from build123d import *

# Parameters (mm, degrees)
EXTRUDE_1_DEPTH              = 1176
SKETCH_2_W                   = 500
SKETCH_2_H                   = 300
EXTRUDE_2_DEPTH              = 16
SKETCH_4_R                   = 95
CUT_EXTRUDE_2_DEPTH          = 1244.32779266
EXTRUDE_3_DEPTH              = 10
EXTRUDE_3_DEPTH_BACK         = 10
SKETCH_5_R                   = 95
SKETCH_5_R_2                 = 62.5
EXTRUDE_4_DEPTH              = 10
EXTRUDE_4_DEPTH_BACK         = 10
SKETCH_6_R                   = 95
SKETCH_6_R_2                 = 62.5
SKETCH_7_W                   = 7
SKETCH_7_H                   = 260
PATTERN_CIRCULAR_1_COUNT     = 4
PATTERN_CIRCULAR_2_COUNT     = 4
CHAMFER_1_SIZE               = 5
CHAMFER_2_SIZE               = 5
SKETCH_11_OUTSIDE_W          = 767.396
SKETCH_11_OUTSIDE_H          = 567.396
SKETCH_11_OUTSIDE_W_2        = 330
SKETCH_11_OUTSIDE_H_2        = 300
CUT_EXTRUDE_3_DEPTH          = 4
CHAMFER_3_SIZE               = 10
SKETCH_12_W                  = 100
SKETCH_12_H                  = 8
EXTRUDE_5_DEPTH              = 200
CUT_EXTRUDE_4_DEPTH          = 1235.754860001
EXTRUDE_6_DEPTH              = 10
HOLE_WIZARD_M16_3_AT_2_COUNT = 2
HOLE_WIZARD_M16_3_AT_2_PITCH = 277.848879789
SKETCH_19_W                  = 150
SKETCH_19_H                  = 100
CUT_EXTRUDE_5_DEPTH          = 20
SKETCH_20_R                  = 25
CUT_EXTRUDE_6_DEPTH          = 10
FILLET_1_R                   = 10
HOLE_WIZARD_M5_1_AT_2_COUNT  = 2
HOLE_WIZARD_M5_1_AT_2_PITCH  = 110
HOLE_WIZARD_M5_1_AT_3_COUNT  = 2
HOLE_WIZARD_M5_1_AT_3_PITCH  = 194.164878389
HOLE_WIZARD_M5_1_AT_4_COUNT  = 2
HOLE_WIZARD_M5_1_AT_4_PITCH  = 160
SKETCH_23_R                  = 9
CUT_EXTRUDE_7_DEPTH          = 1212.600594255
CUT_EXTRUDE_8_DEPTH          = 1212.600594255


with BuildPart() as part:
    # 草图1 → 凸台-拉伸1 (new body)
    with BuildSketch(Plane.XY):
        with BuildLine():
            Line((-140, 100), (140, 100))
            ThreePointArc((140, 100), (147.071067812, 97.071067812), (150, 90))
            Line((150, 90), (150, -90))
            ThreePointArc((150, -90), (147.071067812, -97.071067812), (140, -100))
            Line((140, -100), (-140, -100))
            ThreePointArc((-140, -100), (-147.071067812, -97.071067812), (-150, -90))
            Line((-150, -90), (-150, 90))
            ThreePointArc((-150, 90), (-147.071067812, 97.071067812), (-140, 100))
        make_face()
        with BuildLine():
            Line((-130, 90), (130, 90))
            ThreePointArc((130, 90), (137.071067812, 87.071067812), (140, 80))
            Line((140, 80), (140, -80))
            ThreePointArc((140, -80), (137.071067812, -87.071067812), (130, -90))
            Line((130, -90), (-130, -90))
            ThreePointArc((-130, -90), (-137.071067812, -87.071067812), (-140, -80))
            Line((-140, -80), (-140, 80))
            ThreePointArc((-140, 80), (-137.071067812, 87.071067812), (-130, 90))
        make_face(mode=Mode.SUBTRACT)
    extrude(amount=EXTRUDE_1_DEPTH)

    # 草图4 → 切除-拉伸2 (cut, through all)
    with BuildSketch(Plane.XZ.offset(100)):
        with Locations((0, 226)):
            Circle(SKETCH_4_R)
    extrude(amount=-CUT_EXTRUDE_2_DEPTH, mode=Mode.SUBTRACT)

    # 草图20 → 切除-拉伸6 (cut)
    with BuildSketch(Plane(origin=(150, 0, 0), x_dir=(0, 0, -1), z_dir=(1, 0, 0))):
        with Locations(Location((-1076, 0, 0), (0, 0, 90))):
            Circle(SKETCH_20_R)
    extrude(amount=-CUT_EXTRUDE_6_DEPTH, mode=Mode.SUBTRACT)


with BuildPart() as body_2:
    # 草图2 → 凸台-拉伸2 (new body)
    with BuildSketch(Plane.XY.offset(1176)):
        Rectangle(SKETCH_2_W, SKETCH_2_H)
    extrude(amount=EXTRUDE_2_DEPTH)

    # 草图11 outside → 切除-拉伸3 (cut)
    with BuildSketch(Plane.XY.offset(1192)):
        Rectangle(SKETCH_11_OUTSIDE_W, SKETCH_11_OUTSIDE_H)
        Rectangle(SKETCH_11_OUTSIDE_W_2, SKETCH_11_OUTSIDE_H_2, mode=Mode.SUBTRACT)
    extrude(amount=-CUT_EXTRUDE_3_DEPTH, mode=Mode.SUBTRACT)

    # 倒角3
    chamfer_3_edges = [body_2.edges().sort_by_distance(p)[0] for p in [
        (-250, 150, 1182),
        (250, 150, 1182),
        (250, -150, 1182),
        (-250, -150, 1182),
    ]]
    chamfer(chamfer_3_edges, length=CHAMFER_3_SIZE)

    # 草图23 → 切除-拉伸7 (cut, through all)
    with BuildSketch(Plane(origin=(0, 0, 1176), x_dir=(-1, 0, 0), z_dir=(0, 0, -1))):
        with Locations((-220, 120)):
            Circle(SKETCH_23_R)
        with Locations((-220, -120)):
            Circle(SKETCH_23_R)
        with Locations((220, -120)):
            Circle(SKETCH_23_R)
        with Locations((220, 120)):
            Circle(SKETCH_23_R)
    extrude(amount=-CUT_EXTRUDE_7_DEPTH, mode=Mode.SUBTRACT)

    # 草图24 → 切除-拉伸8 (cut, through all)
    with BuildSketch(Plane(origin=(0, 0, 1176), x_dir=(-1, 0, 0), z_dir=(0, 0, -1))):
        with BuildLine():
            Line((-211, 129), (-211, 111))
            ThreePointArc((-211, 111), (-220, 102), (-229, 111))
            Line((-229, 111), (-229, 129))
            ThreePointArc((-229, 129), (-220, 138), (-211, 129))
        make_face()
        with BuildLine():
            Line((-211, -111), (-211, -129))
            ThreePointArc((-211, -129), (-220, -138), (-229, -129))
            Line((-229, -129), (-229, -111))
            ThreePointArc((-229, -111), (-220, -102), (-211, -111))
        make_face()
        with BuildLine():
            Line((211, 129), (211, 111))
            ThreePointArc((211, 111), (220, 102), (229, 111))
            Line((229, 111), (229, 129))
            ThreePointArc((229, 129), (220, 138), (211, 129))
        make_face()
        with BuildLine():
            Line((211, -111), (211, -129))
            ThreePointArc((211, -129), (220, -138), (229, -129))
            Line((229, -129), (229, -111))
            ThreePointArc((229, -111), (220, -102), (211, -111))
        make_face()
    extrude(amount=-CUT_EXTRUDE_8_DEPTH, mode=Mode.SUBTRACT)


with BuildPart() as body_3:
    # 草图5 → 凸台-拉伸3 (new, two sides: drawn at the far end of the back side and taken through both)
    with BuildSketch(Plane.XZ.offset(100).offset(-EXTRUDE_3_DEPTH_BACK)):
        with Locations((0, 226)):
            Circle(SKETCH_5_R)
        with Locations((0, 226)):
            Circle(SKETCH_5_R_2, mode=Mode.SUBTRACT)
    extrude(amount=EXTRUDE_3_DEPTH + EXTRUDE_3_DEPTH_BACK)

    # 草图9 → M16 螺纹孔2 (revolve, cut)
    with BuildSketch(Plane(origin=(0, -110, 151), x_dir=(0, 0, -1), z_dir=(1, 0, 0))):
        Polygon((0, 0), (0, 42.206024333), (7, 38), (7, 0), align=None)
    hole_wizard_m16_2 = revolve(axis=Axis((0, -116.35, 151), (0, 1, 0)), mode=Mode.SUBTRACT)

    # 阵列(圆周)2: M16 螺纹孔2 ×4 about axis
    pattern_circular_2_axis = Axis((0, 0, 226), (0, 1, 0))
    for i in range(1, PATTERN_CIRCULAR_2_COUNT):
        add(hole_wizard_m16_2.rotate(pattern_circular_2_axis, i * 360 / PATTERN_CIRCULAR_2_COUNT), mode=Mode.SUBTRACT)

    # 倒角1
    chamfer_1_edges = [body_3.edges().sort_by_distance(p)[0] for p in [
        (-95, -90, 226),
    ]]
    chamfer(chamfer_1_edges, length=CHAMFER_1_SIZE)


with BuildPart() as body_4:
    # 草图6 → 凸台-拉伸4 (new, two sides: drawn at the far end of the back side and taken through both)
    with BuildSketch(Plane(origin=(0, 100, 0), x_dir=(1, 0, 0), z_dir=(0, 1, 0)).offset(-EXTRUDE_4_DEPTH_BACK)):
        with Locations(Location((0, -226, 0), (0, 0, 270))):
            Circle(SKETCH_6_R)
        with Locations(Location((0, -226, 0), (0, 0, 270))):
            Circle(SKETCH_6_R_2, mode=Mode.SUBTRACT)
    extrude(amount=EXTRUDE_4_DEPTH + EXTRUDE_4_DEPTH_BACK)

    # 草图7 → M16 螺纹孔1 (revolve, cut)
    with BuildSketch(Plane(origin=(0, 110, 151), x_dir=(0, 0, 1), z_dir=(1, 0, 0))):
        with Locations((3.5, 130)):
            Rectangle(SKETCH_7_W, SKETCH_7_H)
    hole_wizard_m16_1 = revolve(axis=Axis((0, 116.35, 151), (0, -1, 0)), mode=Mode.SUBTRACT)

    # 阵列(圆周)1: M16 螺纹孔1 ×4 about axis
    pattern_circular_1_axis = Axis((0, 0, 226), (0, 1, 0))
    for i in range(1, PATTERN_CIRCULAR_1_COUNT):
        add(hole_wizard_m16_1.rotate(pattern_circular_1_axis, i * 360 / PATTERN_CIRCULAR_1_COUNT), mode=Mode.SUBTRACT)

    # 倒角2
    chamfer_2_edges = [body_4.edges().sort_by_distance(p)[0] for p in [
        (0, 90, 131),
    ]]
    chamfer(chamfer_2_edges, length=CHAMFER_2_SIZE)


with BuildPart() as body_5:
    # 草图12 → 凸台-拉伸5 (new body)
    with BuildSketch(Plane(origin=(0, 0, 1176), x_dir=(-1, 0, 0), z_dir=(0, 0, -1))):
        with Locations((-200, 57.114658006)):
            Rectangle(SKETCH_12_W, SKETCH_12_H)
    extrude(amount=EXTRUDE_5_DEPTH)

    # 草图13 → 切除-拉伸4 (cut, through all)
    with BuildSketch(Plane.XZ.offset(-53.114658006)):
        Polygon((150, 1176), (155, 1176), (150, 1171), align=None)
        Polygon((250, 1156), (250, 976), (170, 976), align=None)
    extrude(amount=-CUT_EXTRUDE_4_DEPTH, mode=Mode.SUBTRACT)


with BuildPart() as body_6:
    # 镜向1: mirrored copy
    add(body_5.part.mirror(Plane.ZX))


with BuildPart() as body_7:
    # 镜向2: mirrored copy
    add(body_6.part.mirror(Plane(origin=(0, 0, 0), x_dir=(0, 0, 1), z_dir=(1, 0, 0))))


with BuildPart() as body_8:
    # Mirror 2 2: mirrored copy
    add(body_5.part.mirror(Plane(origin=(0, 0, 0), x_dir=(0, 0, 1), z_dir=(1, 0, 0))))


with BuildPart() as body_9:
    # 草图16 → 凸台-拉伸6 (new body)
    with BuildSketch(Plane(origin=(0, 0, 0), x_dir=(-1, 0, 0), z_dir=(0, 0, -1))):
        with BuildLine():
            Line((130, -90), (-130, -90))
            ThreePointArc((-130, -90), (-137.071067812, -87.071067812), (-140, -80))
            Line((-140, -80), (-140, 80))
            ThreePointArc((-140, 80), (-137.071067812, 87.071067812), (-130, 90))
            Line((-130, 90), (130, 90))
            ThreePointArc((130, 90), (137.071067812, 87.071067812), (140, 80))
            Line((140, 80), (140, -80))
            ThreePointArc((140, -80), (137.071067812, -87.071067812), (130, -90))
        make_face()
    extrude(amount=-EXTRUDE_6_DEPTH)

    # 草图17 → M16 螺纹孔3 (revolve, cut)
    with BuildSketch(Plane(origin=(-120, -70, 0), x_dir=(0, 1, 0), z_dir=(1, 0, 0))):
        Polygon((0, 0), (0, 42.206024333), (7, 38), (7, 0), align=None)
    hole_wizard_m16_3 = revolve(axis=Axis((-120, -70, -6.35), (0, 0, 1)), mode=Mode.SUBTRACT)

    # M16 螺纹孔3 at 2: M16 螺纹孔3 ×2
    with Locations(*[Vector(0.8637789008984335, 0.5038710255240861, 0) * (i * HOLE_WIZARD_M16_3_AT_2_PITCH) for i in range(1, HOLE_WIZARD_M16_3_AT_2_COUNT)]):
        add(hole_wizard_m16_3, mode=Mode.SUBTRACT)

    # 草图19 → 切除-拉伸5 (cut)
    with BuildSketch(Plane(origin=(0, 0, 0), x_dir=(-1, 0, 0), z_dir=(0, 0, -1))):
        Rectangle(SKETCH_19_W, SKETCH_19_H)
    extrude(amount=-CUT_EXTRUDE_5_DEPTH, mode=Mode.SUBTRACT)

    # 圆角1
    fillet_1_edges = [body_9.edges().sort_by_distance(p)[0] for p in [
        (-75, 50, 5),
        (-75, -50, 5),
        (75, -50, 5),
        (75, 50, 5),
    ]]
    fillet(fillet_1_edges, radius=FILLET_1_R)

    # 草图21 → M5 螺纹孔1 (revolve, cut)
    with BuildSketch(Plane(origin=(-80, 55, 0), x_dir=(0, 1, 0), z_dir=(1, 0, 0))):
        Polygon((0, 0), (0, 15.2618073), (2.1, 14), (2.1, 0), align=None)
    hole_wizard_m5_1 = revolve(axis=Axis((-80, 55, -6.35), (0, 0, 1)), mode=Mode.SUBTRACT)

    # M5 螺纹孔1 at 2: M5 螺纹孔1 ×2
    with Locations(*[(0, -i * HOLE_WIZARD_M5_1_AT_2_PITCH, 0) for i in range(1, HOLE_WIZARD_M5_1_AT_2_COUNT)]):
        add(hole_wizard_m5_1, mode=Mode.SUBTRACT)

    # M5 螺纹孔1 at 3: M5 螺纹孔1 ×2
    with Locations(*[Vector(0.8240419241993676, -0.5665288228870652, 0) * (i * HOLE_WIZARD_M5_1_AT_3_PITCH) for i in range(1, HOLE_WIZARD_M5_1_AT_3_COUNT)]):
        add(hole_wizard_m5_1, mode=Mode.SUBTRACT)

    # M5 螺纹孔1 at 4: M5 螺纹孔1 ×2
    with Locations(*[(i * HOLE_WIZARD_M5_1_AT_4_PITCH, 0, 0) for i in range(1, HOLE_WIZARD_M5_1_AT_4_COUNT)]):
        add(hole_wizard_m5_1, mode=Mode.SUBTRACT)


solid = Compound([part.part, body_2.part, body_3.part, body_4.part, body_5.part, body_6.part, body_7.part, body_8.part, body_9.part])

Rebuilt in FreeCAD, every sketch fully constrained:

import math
import FreeCAD as App
import Part
import Sketcher

V = App.Vector
Q = App.Units.Quantity


def edges_at(feature, points):
    """Names of the edges that pass closest to the given points."""
    edges = feature.Shape.Edges
    near = lambda p: min(range(len(edges)), key=lambda i: edges[i].distToShape(Part.Vertex(*p))[0])
    return sorted({f"Edge{near(p) + 1}" for p in points})

doc = App.newDocument("Part")
params = doc.addObject("Spreadsheet::Sheet", "Params")
for row, (alias, value) in enumerate([
    ("sketch1_radius", "10 mm"),
    ("sketch1_width", "280 mm"),
    ("sketch1_height", "180 mm"),
    ("pad1_length", "1176 mm"),
    ("sketch2_diameter", "190 mm"),
    ("sketch3_diameter", "50 mm"),
    ("pocket2_length", "10 mm"),
    ("sketch4_width", "500 mm"),
    ("sketch4_height", "300 mm"),
    ("pad2_length", "16 mm"),
    ("sketch5_width", "330 mm"),
    ("sketch5_height", "300 mm"),
    ("pocket3_length", "4 mm"),
    ("chamfer_size", "10 mm"),
    ("sketch6_diameter", "18 mm"),
    ("sketch7_radius", "9 mm"),
    ("sketch7_height", "18 mm"),
    ("sketch8_diameter", "190 mm"),
    ("sketch8_diameter2", "125 mm"),
    ("pad3_length", "10 mm"),
    ("pad3_length2", "10 mm"),
    ("sketch9_width", "38 mm"),
    ("sketch9_height", "7 mm"),
    ("groove_angle", "360 deg"),
    ("chamfer2_size", "5 mm"),
    ("sketch10_diameter", "190 mm"),
    ("sketch10_diameter2", "125 mm"),
    ("pad4_length", "10 mm"),
    ("pad4_length2", "10 mm"),
    ("sketch11_width", "260 mm"),
    ("sketch11_height", "7 mm"),
    ("groove2_angle", "360 deg"),
    ("chamfer3_size", "5 mm"),
    ("sketch12_width", "100 mm"),
    ("sketch12_height", "8 mm"),
    ("pad5_length", "200 mm"),
    ("sketch13_width", "5 mm"),
    ("sketch13_width2", "80 mm"),
    ("sketch13_height", "180 mm"),
    ("sketch14_radius", "10 mm"),
    ("sketch14_width", "260 mm"),
    ("sketch14_height", "160 mm"),
    ("pad6_length", "10 mm"),
    ("sketch15_width", "7 mm"),
    ("sketch15_height", "38 mm"),
    ("groove3_angle", "360 deg"),
    ("linearpattern_pitch", "277.84888 mm"),
    ("sketch16_width", "150 mm"),
    ("sketch16_height", "100 mm"),
    ("pocket7_length", "20 mm"),
    ("fillet_radius", "10 mm"),
    ("sketch17_height", "14 mm"),
    ("sketch17_width", "2.1 mm"),
    ("groove4_angle", "360 deg"),
    ("linearpattern2_pitch", "110 mm"),
    ("linearpattern3_pitch", "194.164878 mm"),
    ("linearpattern4_pitch", "160 mm"),
], start=1):
    params.set(f"A{row}", alias)
    params.set(f"B{row}", "=" + value)
    params.setAlias(f"B{row}", alias)

body = doc.addObject("PartDesign::Body", "Body")

sketch1 = body.newObject("Sketcher::SketchObject", "Sketch")
sketch1.AttachmentSupport = (doc.getObject("XY_Plane"), [""])
sketch1.MapMode = "FlatFace"
sketch1.addGeometry([
    Part.LineSegment(V(140, 100, 0), V(-140, 100, 0)),
    Part.ArcOfCircle(Part.Circle(V(-140, 90, 0), V(0, 0, 1), 10), math.radians(90), math.radians(180)),
    Part.LineSegment(V(-150, 90, 0), V(-150, -90, 0)),
    Part.ArcOfCircle(Part.Circle(V(-140, -90, 0), V(0, 0, 1), 10), math.radians(180), math.radians(270)),
    Part.LineSegment(V(-140, -100, 0), V(140, -100, 0)),
    Part.ArcOfCircle(Part.Circle(V(140, -90, 0), V(0, 0, 1), 10), math.radians(-90), math.radians(0)),
    Part.LineSegment(V(150, -90, 0), V(150, 90, 0)),
    Part.ArcOfCircle(Part.Circle(V(140, 90, 0), V(0, 0, 1), 10), math.radians(0), math.radians(90)),
    Part.LineSegment(V(-130, 90, 0), V(130, 90, 0)),
    Part.ArcOfCircle(Part.Circle(V(130, 80, 0), V(0, 0, 1), 10), math.radians(0), math.radians(90)),
    Part.LineSegment(V(140, 80, 0), V(140, -80, 0)),
    Part.ArcOfCircle(Part.Circle(V(130, -80, 0), V(0, 0, 1), 10), math.radians(-90), math.radians(0)),
    Part.LineSegment(V(130, -90, 0), V(-130, -90, 0)),
    Part.ArcOfCircle(Part.Circle(V(-130, -80, 0), V(0, 0, 1), 10), math.radians(180), math.radians(270)),
    Part.LineSegment(V(-140, -80, 0), V(-140, 80, 0)),
    Part.ArcOfCircle(Part.Circle(V(-130, 80, 0), V(0, 0, 1), 10), math.radians(90), math.radians(180)),
], False)
sketch1.addConstraint([
    Sketcher.Constraint("Tangent", 0, 2, 1, 1),
    Sketcher.Constraint("Tangent", 1, 2, 2, 1),
    Sketcher.Constraint("Tangent", 2, 2, 3, 1),
    Sketcher.Constraint("Tangent", 3, 2, 4, 1),
    Sketcher.Constraint("Tangent", 4, 2, 5, 1),
    Sketcher.Constraint("Tangent", 5, 2, 6, 1),
    Sketcher.Constraint("Tangent", 6, 2, 7, 1),
    Sketcher.Constraint("Tangent", 7, 2, 0, 1),
    Sketcher.Constraint("Tangent", 8, 2, 9, 2),
    Sketcher.Constraint("Tangent", 9, 1, 10, 1),
    Sketcher.Constraint("Tangent", 10, 2, 11, 2),
    Sketcher.Constraint("Tangent", 11, 1, 12, 1),
    Sketcher.Constraint("Tangent", 12, 2, 13, 2),
    Sketcher.Constraint("Tangent", 13, 1, 14, 1),
    Sketcher.Constraint("Tangent", 14, 2, 15, 2),
    Sketcher.Constraint("Tangent", 15, 1, 8, 1),
    Sketcher.Constraint("Horizontal", 0),
    Sketcher.Constraint("Vertical", 2),
    Sketcher.Constraint("Horizontal", 4),
    Sketcher.Constraint("Vertical", 6),
    Sketcher.Constraint("Horizontal", 8),
    Sketcher.Constraint("Vertical", 10),
    Sketcher.Constraint("Horizontal", 12),
    Sketcher.Constraint("Vertical", 14),
    Sketcher.Constraint("Equal", 1, 3),
    Sketcher.Constraint("Equal", 3, 5),
    Sketcher.Constraint("Equal", 5, 7),
    Sketcher.Constraint("Equal", 7, 9),
    Sketcher.Constraint("Equal", 9, 11),
    Sketcher.Constraint("Equal", 11, 13),
    Sketcher.Constraint("Equal", 13, 15),
    Sketcher.Constraint("Symmetric", 1, 3, 5, 3, -1, 1),
    Sketcher.Constraint("Symmetric", 9, 3, 13, 3, -1, 1),
    Sketcher.Constraint("Horizontal", 6, 2, 8, 2),
    Sketcher.Constraint("Vertical", 7, 2, 9, 1),
    Sketcher.Constraint("Radius", 1, Q("10 mm")),
    Sketcher.Constraint("DistanceX", 0, 2, 0, 1, Q("280 mm")),
    Sketcher.Constraint("DistanceY", 2, 2, 2, 1, Q("180 mm")),
])
sketch1.setExpression("Constraints[35]", "Params.sketch1_radius")
sketch1.setExpression("Constraints[36]", "Params.sketch1_width")
sketch1.setExpression("Constraints[37]", "Params.sketch1_height")
pad1 = body.newObject("PartDesign::Pad", "Pad")
pad1.Profile = sketch1
pad1.setExpression("Length", "Params.pad1_length")

sketch2 = body.newObject("Sketcher::SketchObject", "Sketch001")
sketch2.AttachmentSupport = (doc.getObject("XZ_Plane"), [""])
sketch2.MapMode = "FlatFace"
sketch2.AttachmentOffset = App.Placement(V(0, 0, 100), App.Rotation())
sketch2.addGeometry(Part.Circle(V(0, 226, 0), V(0, 0, 1), 95), False)
sketch2.addConstraint([
    Sketcher.Constraint("PointOnObject", 0, 3, -2),
    Sketcher.Constraint("Diameter", 0, Q("190 mm")),
    Sketcher.Constraint("DistanceY", -1, 1, 0, 3, Q("226 mm")),
])
sketch2.setExpression("Constraints[1]", "Params.sketch2_diameter")
pocket1 = body.newObject("PartDesign::Pocket", "Pocket")
pocket1.Profile = sketch2
pocket1.Type = "ThroughAll"

sketch3 = body.newObject("Sketcher::SketchObject", "Sketch002")
sketch3.AttachmentSupport = (doc.getObject("YZ_Plane"), [""])
sketch3.MapMode = "FlatFace"
sketch3.AttachmentOffset = App.Placement(V(0, 0, 150), App.Rotation())
sketch3.addGeometry(Part.Circle(V(0, 1076, 0), V(0, 0, 1), 25), False)
sketch3.addConstraint([
    Sketcher.Constraint("PointOnObject", 0, 3, -2),
    Sketcher.Constraint("Diameter", 0, Q("50 mm")),
    Sketcher.Constraint("DistanceY", -1, 1, 0, 3, Q("1076 mm")),
])
sketch3.setExpression("Constraints[1]", "Params.sketch3_diameter")
pocket2 = body.newObject("PartDesign::Pocket", "Pocket001")
pocket2.Profile = sketch3
pocket2.setExpression("Length", "Params.pocket2_length")
body2 = doc.addObject("PartDesign::Body", "Body001")

sketch4 = body2.newObject("Sketcher::SketchObject", "Sketch003")
sketch4.AttachmentSupport = (doc.getObject("XY_Plane001"), [""])
sketch4.MapMode = "FlatFace"
sketch4.AttachmentOffset = App.Placement(V(0, 0, 1176), App.Rotation())
sketch4.addGeometry([
    Part.LineSegment(V(-250, 150, 0), V(-250, -150, 0)),
    Part.LineSegment(V(-250, -150, 0), V(250, -150, 0)),
    Part.LineSegment(V(250, -150, 0), V(250, 150, 0)),
    Part.LineSegment(V(250, 150, 0), V(-250, 150, 0)),
], False)
sketch4.addConstraint([
    Sketcher.Constraint("Coincident", 0, 2, 1, 1),
    Sketcher.Constraint("Coincident", 1, 2, 2, 1),
    Sketcher.Constraint("Coincident", 2, 2, 3, 1),
    Sketcher.Constraint("Coincident", 3, 2, 0, 1),
    Sketcher.Constraint("Vertical", 0),
    Sketcher.Constraint("Horizontal", 1),
    Sketcher.Constraint("Vertical", 2),
    Sketcher.Constraint("Horizontal", 3),
    Sketcher.Constraint("Symmetric", 0, 2, 2, 2, -1, 1),
    Sketcher.Constraint("DistanceX", 1, 1, 1, 2, Q("500 mm")),
    Sketcher.Constraint("DistanceY", 0, 2, 0, 1, Q("300 mm")),
])
sketch4.setExpression("Constraints[9]", "Params.sketch4_width")
sketch4.setExpression("Constraints[10]", "Params.sketch4_height")
pad2 = body2.newObject("PartDesign::Pad", "Pad001")
pad2.Profile = sketch4
pad2.setExpression("Length", "Params.pad2_length")

sketch5 = body2.newObject("Sketcher::SketchObject", "Sketch004")
sketch5.AttachmentSupport = (doc.getObject("XY_Plane001"), [""])
sketch5.MapMode = "FlatFace"
sketch5.AttachmentOffset = App.Placement(V(0, 0, 1192), App.Rotation())
sketch5.addGeometry([
    Part.LineSegment(V(-383.698, 283.698, 0), V(-383.698, -283.698, 0)),
    Part.LineSegment(V(-383.698, -283.698, 0), V(383.698, -283.698, 0)),
    Part.LineSegment(V(383.698, -283.698, 0), V(383.698, 283.698, 0)),
    Part.LineSegment(V(383.698, 283.698, 0), V(-383.698, 283.698, 0)),
    Part.LineSegment(V(165, -150, 0), V(-165, -150, 0)),
    Part.LineSegment(V(-165, -150, 0), V(-165, 150, 0)),
    Part.LineSegment(V(-165, 150, 0), V(165, 150, 0)),
    Part.LineSegment(V(165, 150, 0), V(165, -150, 0)),
], False)
sketch5.addConstraint([
    Sketcher.Constraint("Coincident", 0, 2, 1, 1),
    Sketcher.Constraint("Coincident", 1, 2, 2, 1),
    Sketcher.Constraint("Coincident", 2, 2, 3, 1),
    Sketcher.Constraint("Coincident", 3, 2, 0, 1),
    Sketcher.Constraint("Coincident", 4, 2, 5, 1),
    Sketcher.Constraint("Coincident", 5, 2, 6, 1),
    Sketcher.Constraint("Coincident", 6, 2, 7, 1),
    Sketcher.Constraint("Coincident", 7, 2, 4, 1),
    Sketcher.Constraint("Vertical", 0),
    Sketcher.Constraint("Horizontal", 1),
    Sketcher.Constraint("Vertical", 2),
    Sketcher.Constraint("Horizontal", 3),
    Sketcher.Constraint("Horizontal", 4),
    Sketcher.Constraint("Vertical", 5),
    Sketcher.Constraint("Horizontal", 6),
    Sketcher.Constraint("Vertical", 7),
    Sketcher.Constraint("Symmetric", 0, 2, 2, 2, -1, 1),
    Sketcher.Constraint("Symmetric", 4, 2, 6, 2, -1, 1),
    Sketcher.Constraint("DistanceX", 4, 2, 4, 1, Q("330 mm")),
    Sketcher.Constraint("DistanceY", 5, 1, 5, 2, Q("300 mm")),
    Sketcher.Constraint("DistanceX", 1, 1, 1, 2, Q("767.396 mm")),
    Sketcher.Constraint("DistanceY", 0, 2, 0, 1, Q("567.396 mm")),
])
sketch5.setExpression("Constraints[18]", "Params.sketch5_width")
sketch5.setExpression("Constraints[19]", "Params.sketch5_height")
pocket3 = body2.newObject("PartDesign::Pocket", "Pocket002")
pocket3.Profile = sketch5
pocket3.setExpression("Length", "Params.pocket3_length")
doc.recompute()

chamfer = body2.newObject("PartDesign::Chamfer", "Chamfer")
chamfer.Base = (pocket3, edges_at(pocket3, [
    (-250, 150, 1182),
    (250, 150, 1182),
    (250, -150, 1182),
    (-250, -150, 1182),
]))
chamfer.setExpression("Size", "Params.chamfer_size")

sketch6 = body2.newObject("Sketcher::SketchObject", "Sketch005")
sketch6.AttachmentSupport = (doc.getObject("XY_Plane001"), [""])
sketch6.MapMode = "FlatFace"
sketch6.AttachmentOffset = App.Placement(V(0, 0, 1176), App.Rotation())
sketch6.addGeometry([
    Part.Circle(V(220, 120, 0), V(0, 0, 1), 9),
    Part.Circle(V(220, -120, 0), V(0, 0, 1), 9),
    Part.Circle(V(-220, -120, 0), V(0, 0, 1), 9),
    Part.Circle(V(-220, 120, 0), V(0, 0, 1), 9),
], False)
sketch6.addConstraint([
    Sketcher.Constraint("Equal", 0, 1),
    Sketcher.Constraint("Equal", 1, 2),
    Sketcher.Constraint("Equal", 2, 3),
    Sketcher.Constraint("Symmetric", 0, 3, 2, 3, -1, 1),
    Sketcher.Constraint("Symmetric", 1, 3, 3, 3, -1, 1),
    Sketcher.Constraint("Symmetric", 1, 3, 2, 3, -2),
    Sketcher.Constraint("Diameter", 0, Q("18 mm")),
    Sketcher.Constraint("DistanceX", -1, 1, 0, 3, Q("220 mm")),
    Sketcher.Constraint("DistanceY", -1, 1, 0, 3, Q("120 mm")),
])
sketch6.setExpression("Constraints[6]", "Params.sketch6_diameter")
pocket4 = body2.newObject("PartDesign::Pocket", "Pocket003")
pocket4.Profile = sketch6
pocket4.Type = "ThroughAll"
pocket4.Reversed = True

sketch7 = body2.newObject("Sketcher::SketchObject", "Sketch006")
sketch7.AttachmentSupport = (doc.getObject("XY_Plane001"), [""])
sketch7.MapMode = "FlatFace"
sketch7.AttachmentOffset = App.Placement(V(0, 0, 1176), App.Rotation())
sketch7.addGeometry([
    Part.LineSegment(V(211, 111, 0), V(211, 129, 0)),
    Part.ArcOfCircle(Part.Circle(V(220, 129, 0), V(0, 0, 1), 9), math.radians(0), math.radians(180)),
    Part.LineSegment(V(229, 129, 0), V(229, 111, 0)),
    Part.ArcOfCircle(Part.Circle(V(220, 111, 0), V(0, 0, 1), 9), math.radians(180), math.radians(360)),
    Part.LineSegment(V(211, -129, 0), V(211, -111, 0)),
    Part.ArcOfCircle(Part.Circle(V(220, -111, 0), V(0, 0, 1), 9), math.radians(0), math.radians(180)),
    Part.LineSegment(V(229, -111, 0), V(229, -129, 0)),
    Part.ArcOfCircle(Part.Circle(V(220, -129, 0), V(0, 0, 1), 9), math.radians(180), math.radians(360)),
    Part.LineSegment(V(-211, 129, 0), V(-211, 111, 0)),
    Part.ArcOfCircle(Part.Circle(V(-220, 111, 0), V(0, 0, 1), 9), math.radians(180), math.radians(360)),
    Part.LineSegment(V(-229, 111, 0), V(-229, 129, 0)),
    Part.ArcOfCircle(Part.Circle(V(-220, 129, 0), V(0, 0, 1), 9), math.radians(0), math.radians(180)),
    Part.LineSegment(V(-211, -111, 0), V(-211, -129, 0)),
    Part.ArcOfCircle(Part.Circle(V(-220, -129, 0), V(0, 0, 1), 9), math.radians(180), math.radians(360)),
    Part.LineSegment(V(-229, -129, 0), V(-229, -111, 0)),
    Part.ArcOfCircle(Part.Circle(V(-220, -111, 0), V(0, 0, 1), 9), math.radians(0), math.radians(180)),
], False)
sketch7.addConstraint([
    Sketcher.Constraint("Tangent", 0, 2, 1, 2),
    Sketcher.Constraint("Tangent", 1, 1, 2, 1),
    Sketcher.Constraint("Tangent", 2, 2, 3, 2),
    Sketcher.Constraint("Tangent", 3, 1, 0, 1),
    Sketcher.Constraint("Tangent", 4, 2, 5, 2),
    Sketcher.Constraint("Tangent", 5, 1, 6, 1),
    Sketcher.Constraint("Tangent", 6, 2, 7, 2),
    Sketcher.Constraint("Tangent", 7, 1, 4, 1),
    Sketcher.Constraint("Tangent", 8, 2, 9, 2),
    Sketcher.Constraint("Tangent", 9, 1, 10, 1),
    Sketcher.Constraint("Tangent", 10, 2, 11, 2),
    Sketcher.Constraint("Tangent", 11, 1, 8, 1),
    Sketcher.Constraint("Tangent", 12, 2, 13, 2),
    Sketcher.Constraint("Tangent", 13, 1, 14, 1),
    Sketcher.Constraint("Tangent", 14, 2, 15, 2),
    Sketcher.Constraint("Tangent", 15, 1, 12, 1),
    Sketcher.Constraint("Vertical", 0),
    Sketcher.Constraint("Vertical", 2),
    Sketcher.Constraint("Vertical", 4),
    Sketcher.Constraint("Vertical", 6),
    Sketcher.Constraint("Vertical", 8),
    Sketcher.Constraint("Vertical", 10),
    Sketcher.Constraint("Vertical", 12),
    Sketcher.Constraint("Vertical", 14),
    Sketcher.Constraint("Equal", 3, 5),
    Sketcher.Constraint("Equal", 7, 9),
    Sketcher.Constraint("Equal", 11, 13),
    Sketcher.Constraint("Symmetric", 5, 3, 9, 3, -1, 1),
    Sketcher.Constraint("Symmetric", 1, 3, 13, 3, -1, 1),
    Sketcher.Constraint("Symmetric", 3, 3, 9, 3, -2),
    Sketcher.Constraint("Horizontal", 1, 3, 11, 3),
    Sketcher.Constraint("Horizontal", 7, 3, 13, 3),
    Sketcher.Constraint("Horizontal", 5, 3, 15, 3),
    Sketcher.Constraint("Radius", 1, Q("9 mm")),
    Sketcher.Constraint("DistanceY", 0, 1, 0, 2, Q("18 mm")),
    Sketcher.Constraint("DistanceX", -1, 1, 1, 3, Q("220 mm")),
    Sketcher.Constraint("DistanceY", -1, 1, 1, 3, Q("129 mm")),
])
sketch7.setExpression("Constraints[33]", "Params.sketch7_radius")
sketch7.setExpression("Constraints[34]", "Params.sketch7_height")
pocket5 = body2.newObject("PartDesign::Pocket", "Pocket004")
pocket5.Profile = sketch7
pocket5.Type = "ThroughAll"
pocket5.Reversed = True
body3 = doc.addObject("PartDesign::Body", "Body002")

sketch8 = body3.newObject("Sketcher::SketchObject", "Sketch007")
sketch8.AttachmentSupport = (doc.getObject("XZ_Plane002"), [""])
sketch8.MapMode = "FlatFace"
sketch8.AttachmentOffset = App.Placement(V(0, 0, 100), App.Rotation())
sketch8.addGeometry([
    Part.Circle(V(0, 226, 0), V(0, 0, 1), 95),
    Part.Circle(V(0, 226, 0), V(0, 0, 1), 62.5),
], False)
sketch8.addConstraint([
    Sketcher.Constraint("Coincident", 1, 3, 0, 3),
    Sketcher.Constraint("PointOnObject", 0, 3, -2),
    Sketcher.Constraint("Diameter", 0, Q("190 mm")),
    Sketcher.Constraint("Diameter", 1, Q("125 mm")),
    Sketcher.Constraint("DistanceY", -1, 1, 0, 3, Q("226 mm")),
])
sketch8.setExpression("Constraints[2]", "Params.sketch8_diameter")
sketch8.setExpression("Constraints[3]", "Params.sketch8_diameter2")
pad3 = body3.newObject("PartDesign::Pad", "Pad002")
pad3.Profile = sketch8
pad3.Type = "TwoLengths"
pad3.setExpression("Length", "Params.pad3_length")
pad3.setExpression("Length2", "Params.pad3_length2")

sketch9 = body3.newObject("Sketcher::SketchObject", "Sketch008")
sketch9.AttachmentSupport = (doc.getObject("YZ_Plane002"), [""])
sketch9.MapMode = "FlatFace"
sketch9.addGeometry([
    Part.LineSegment(V(-67.793976, 151, 0), V(-110, 151, 0)),
    Part.LineSegment(V(-110, 151, 0), V(-110, 144, 0)),
    Part.LineSegment(V(-110, 144, 0), V(-72, 144, 0)),
    Part.LineSegment(V(-72, 144, 0), V(-67.793976, 151, 0)),
], False)
sketch9.addGeometry(Part.LineSegment(V(-110, 151, 0), V(-67.793976, 151, 0)), True)
sketch9.addConstraint([
    Sketcher.Constraint("Coincident", 0, 2, 1, 1),
    Sketcher.Constraint("Coincident", 1, 2, 2, 1),
    Sketcher.Constraint("Coincident", 2, 2, 3, 1),
    Sketcher.Constraint("Coincident", 3, 2, 0, 1),
    Sketcher.Constraint("Horizontal", 0),
    Sketcher.Constraint("Vertical", 1),
    Sketcher.Constraint("Horizontal", 2),
    Sketcher.Constraint("Horizontal", 4),
    Sketcher.Constraint("Coincident", 4, 1, 0, 2),
    Sketcher.Constraint("Equal", 0, 4),
    Sketcher.Constraint("DistanceX", 2, 1, 2, 2, Q("38 mm")),
    Sketcher.Constraint("DistanceY", 1, 2, 1, 1, Q("7 mm")),
    Sketcher.Constraint("Angle", 3, Q("59 deg")),
    Sketcher.Constraint("DistanceX", 0, 2, -1, 1, Q("110 mm")),
    Sketcher.Constraint("DistanceY", -1, 1, 0, 2, Q("151 mm")),
])
sketch9.setExpression("Constraints[10]", "Params.sketch9_width")
sketch9.setExpression("Constraints[11]", "Params.sketch9_height")
groove = body3.newObject("PartDesign::Groove", "Groove")
groove.Profile = sketch9
groove.ReferenceAxis = (sketch9, ["Axis0"])
groove.setExpression("Angle", "Params.groove_angle")
doc.recompute()

datumline = body3.newObject("PartDesign::Line", "DatumLine")
datumline.Placement = App.Placement(V(0, 0, 226), App.Rotation(V(0, 0, 1), V(0, 1, 0)))
polarpattern = body3.newObject("PartDesign::PolarPattern", "PolarPattern")
polarpattern.Originals = [groove]
polarpattern.Axis = (datumline, [""])
polarpattern.Angle = 360
polarpattern.Occurrences = 4
body3.Tip = polarpattern
doc.recompute()

chamfer2 = body3.newObject("PartDesign::Chamfer", "Chamfer001")
chamfer2.Base = (polarpattern, edges_at(polarpattern, [(-95, -90, 226)]))
chamfer2.setExpression("Size", "Params.chamfer2_size")
body4 = doc.addObject("PartDesign::Body", "Body003")

sketch10 = body4.newObject("Sketcher::SketchObject", "Sketch009")
sketch10.AttachmentSupport = (doc.getObject("XZ_Plane003"), [""])
sketch10.MapMode = "FlatFace"
sketch10.AttachmentOffset = App.Placement(V(0, 0, -100), App.Rotation())
sketch10.addGeometry([
    Part.Circle(V(0, 226, 0), V(0, 0, 1), 95),
    Part.Circle(V(0, 226, 0), V(0, 0, 1), 62.5),
], False)
sketch10.addConstraint([
    Sketcher.Constraint("Coincident", 1, 3, 0, 3),
    Sketcher.Constraint("PointOnObject", 0, 3, -2),
    Sketcher.Constraint("Diameter", 0, Q("190 mm")),
    Sketcher.Constraint("Diameter", 1, Q("125 mm")),
    Sketcher.Constraint("DistanceY", -1, 1, 0, 3, Q("226 mm")),
])
sketch10.setExpression("Constraints[2]", "Params.sketch10_diameter")
sketch10.setExpression("Constraints[3]", "Params.sketch10_diameter2")
pad4 = body4.newObject("PartDesign::Pad", "Pad003")
pad4.Profile = sketch10
pad4.Type = "TwoLengths"
pad4.setExpression("Length", "Params.pad4_length")
pad4.setExpression("Length2", "Params.pad4_length2")
pad4.Reversed = True

sketch11 = body4.newObject("Sketcher::SketchObject", "Sketch010")
sketch11.AttachmentSupport = (doc.getObject("YZ_Plane003"), [""])
sketch11.MapMode = "FlatFace"
sketch11.addGeometry([
    Part.LineSegment(V(-150, 151, 0), V(110, 151, 0)),
    Part.LineSegment(V(110, 151, 0), V(110, 158, 0)),
    Part.LineSegment(V(110, 158, 0), V(-150, 158, 0)),
    Part.LineSegment(V(-150, 158, 0), V(-150, 151, 0)),
], False)
sketch11.addGeometry(Part.LineSegment(V(110, 151, 0), V(-150, 151, 0)), True)
sketch11.addConstraint([
    Sketcher.Constraint("Coincident", 0, 2, 1, 1),
    Sketcher.Constraint("Coincident", 1, 2, 2, 1),
    Sketcher.Constraint("Coincident", 2, 2, 3, 1),
    Sketcher.Constraint("Coincident", 3, 2, 0, 1),
    Sketcher.Constraint("Horizontal", 0),
    Sketcher.Constraint("Vertical", 1),
    Sketcher.Constraint("Horizontal", 2),
    Sketcher.Constraint("Vertical", 3),
    Sketcher.Constraint("Horizontal", 4),
    Sketcher.Constraint("Coincident", 4, 1, 0, 2),
    Sketcher.Constraint("Vertical", 2, 2, 4, 2),
    Sketcher.Constraint("DistanceX", 0, 1, 0, 2, Q("260 mm")),
    Sketcher.Constraint("DistanceY", 1, 1, 1, 2, Q("7 mm")),
    Sketcher.Constraint("DistanceX", -1, 1, 0, 2, Q("110 mm")),
    Sketcher.Constraint("DistanceY", -1, 1, 0, 2, Q("151 mm")),
])
sketch11.setExpression("Constraints[11]", "Params.sketch11_width")
sketch11.setExpression("Constraints[12]", "Params.sketch11_height")
groove2 = body4.newObject("PartDesign::Groove", "Groove001")
groove2.Profile = sketch11
groove2.ReferenceAxis = (sketch11, ["Axis0"])
groove2.setExpression("Angle", "Params.groove2_angle")
doc.recompute()

datumline2 = body4.newObject("PartDesign::Line", "DatumLine001")
datumline2.Placement = App.Placement(V(0, 0, 226), App.Rotation(V(0, 0, 1), V(0, 1, 0)))
polarpattern2 = body4.newObject("PartDesign::PolarPattern", "PolarPattern001")
polarpattern2.Originals = [groove2]
polarpattern2.Axis = (datumline2, [""])
polarpattern2.Angle = 360
polarpattern2.Occurrences = 4
body4.Tip = polarpattern2
doc.recompute()

chamfer3 = body4.newObject("PartDesign::Chamfer", "Chamfer002")
chamfer3.Base = (polarpattern2, edges_at(polarpattern2, [(0, 90, 131)]))
chamfer3.setExpression("Size", "Params.chamfer3_size")
body5 = doc.addObject("PartDesign::Body", "Body004")

sketch12 = body5.newObject("Sketcher::SketchObject", "Sketch011")
sketch12.AttachmentSupport = (doc.getObject("XY_Plane004"), [""])
sketch12.MapMode = "FlatFace"
sketch12.AttachmentOffset = App.Placement(V(0, 0, 1176), App.Rotation())
sketch12.addGeometry([
    Part.LineSegment(V(250, 61.114658, 0), V(250, 53.114658, 0)),
    Part.LineSegment(V(250, 53.114658, 0), V(150, 53.114658, 0)),
    Part.LineSegment(V(150, 53.114658, 0), V(150, 61.114658, 0)),
    Part.LineSegment(V(150, 61.114658, 0), V(250, 61.114658, 0)),
], False)
sketch12.addConstraint([
    Sketcher.Constraint("Coincident", 0, 2, 1, 1),
    Sketcher.Constraint("Coincident", 1, 2, 2, 1),
    Sketcher.Constraint("Coincident", 2, 2, 3, 1),
    Sketcher.Constraint("Coincident", 3, 2, 0, 1),
    Sketcher.Constraint("Vertical", 0),
    Sketcher.Constraint("Horizontal", 1),
    Sketcher.Constraint("Vertical", 2),
    Sketcher.Constraint("Horizontal", 3),
    Sketcher.Constraint("DistanceX", 1, 2, 1, 1, Q("100 mm")),
    Sketcher.Constraint("DistanceY", 0, 2, 0, 1, Q("8 mm")),
    Sketcher.Constraint("DistanceX", -1, 1, 0, 2, Q("250 mm")),
    Sketcher.Constraint("DistanceY", -1, 1, 0, 2, Q("53.114658 mm")),
])
sketch12.setExpression("Constraints[8]", "Params.sketch12_width")
sketch12.setExpression("Constraints[9]", "Params.sketch12_height")
pad5 = body5.newObject("PartDesign::Pad", "Pad004")
pad5.Profile = sketch12
pad5.setExpression("Length", "Params.pad5_length")
pad5.Reversed = True

sketch13 = body5.newObject("Sketcher::SketchObject", "Sketch012")
sketch13.AttachmentSupport = (doc.getObject("XZ_Plane004"), [""])
sketch13.MapMode = "FlatFace"
sketch13.AttachmentOffset = App.Placement(V(0, 0, -53.114658), App.Rotation())
sketch13.addGeometry([
    Part.LineSegment(V(155, 1176, 0), V(150, 1176, 0)),
    Part.LineSegment(V(150, 1176, 0), V(150, 1171, 0)),
    Part.LineSegment(V(150, 1171, 0), V(155, 1176, 0)),
    Part.LineSegment(V(250, 976, 0), V(250, 1156, 0)),
    Part.LineSegment(V(250, 1156, 0), V(170, 976, 0)),
    Part.LineSegment(V(170, 976, 0), V(250, 976, 0)),
], False)
sketch13.addConstraint([
    Sketcher.Constraint("Coincident", 0, 2, 1, 1),
    Sketcher.Constraint("Coincident", 1, 2, 2, 1),
    Sketcher.Constraint("Coincident", 2, 2, 0, 1),
    Sketcher.Constraint("Coincident", 3, 2, 4, 1),
    Sketcher.Constraint("Coincident", 4, 2, 5, 1),
    Sketcher.Constraint("Coincident", 5, 2, 3, 1),
    Sketcher.Constraint("Horizontal", 0),
    Sketcher.Constraint("Vertical", 1),
    Sketcher.Constraint("Vertical", 3),
    Sketcher.Constraint("Horizontal", 5),
    Sketcher.Constraint("Equal", 0, 1),
    Sketcher.Constraint("DistanceX", 0, 2, 0, 1, Q("5 mm")),
    Sketcher.Constraint("DistanceX", 5, 1, 5, 2, Q("80 mm")),
    Sketcher.Constraint("DistanceY", 3, 1, 3, 2, Q("180 mm")),
    Sketcher.Constraint("DistanceX", -1, 1, 0, 2, Q("150 mm")),
    Sketcher.Constraint("DistanceY", -1, 1, 0, 2, Q("1176 mm")),
    Sketcher.Constraint("DistanceX", -1, 1, 3, 2, Q("250 mm")),
    Sketcher.Constraint("DistanceY", -1, 1, 3, 2, Q("1156 mm")),
])
sketch13.setExpression("Constraints[11]", "Params.sketch13_width")
sketch13.setExpression("Constraints[12]", "Params.sketch13_width2")
sketch13.setExpression("Constraints[13]", "Params.sketch13_height")
pocket6 = body5.newObject("PartDesign::Pocket", "Pocket005")
pocket6.Profile = sketch13
pocket6.Type = "ThroughAll"
body6 = doc.addObject("PartDesign::Body", "Body005")
doc.recompute()

mirroring = doc.addObject("Part::Mirroring", "Mirroring")
mirroring.Source = body5
mirroring.Base = V(0, 0, 0)
mirroring.Normal = V(0, 1, 0)
body6.BaseFeature = mirroring
doc.recompute()
body7 = doc.addObject("PartDesign::Body", "Body006")
doc.recompute()

mirroring2 = doc.addObject("Part::Mirroring", "Mirroring001")
mirroring2.Source = body6
mirroring2.Base = V(0, 0, 0)
mirroring2.Normal = V(1, 0, 0)
body7.BaseFeature = mirroring2
doc.recompute()
body8 = doc.addObject("PartDesign::Body", "Body007")
doc.recompute()

mirroring3 = doc.addObject("Part::Mirroring", "Mirroring002")
mirroring3.Source = body5
mirroring3.Base = V(0, 0, 0)
mirroring3.Normal = V(1, 0, 0)
body8.BaseFeature = mirroring3
doc.recompute()
body9 = doc.addObject("PartDesign::Body", "Body008")

sketch14 = body9.newObject("Sketcher::SketchObject", "Sketch013")
sketch14.AttachmentSupport = (doc.getObject("XY_Plane008"), [""])
sketch14.MapMode = "FlatFace"
sketch14.addGeometry([
    Part.LineSegment(V(130, -90, 0), V(-130, -90, 0)),
    Part.ArcOfCircle(Part.Circle(V(-130, -80, 0), V(0, 0, 1), 10), math.radians(180), math.radians(270)),
    Part.LineSegment(V(-140, -80, 0), V(-140, 80, 0)),
    Part.ArcOfCircle(Part.Circle(V(-130, 80, 0), V(0, 0, 1), 10), math.radians(90), math.radians(180)),
    Part.LineSegment(V(-130, 90, 0), V(130, 90, 0)),
    Part.ArcOfCircle(Part.Circle(V(130, 80, 0), V(0, 0, 1), 10), math.radians(0), math.radians(90)),
    Part.LineSegment(V(140, 80, 0), V(140, -80, 0)),
    Part.ArcOfCircle(Part.Circle(V(130, -80, 0), V(0, 0, 1), 10), math.radians(-90), math.radians(0)),
], False)
sketch14.addConstraint([
    Sketcher.Constraint("Tangent", 0, 2, 1, 2),
    Sketcher.Constraint("Tangent", 1, 1, 2, 1),
    Sketcher.Constraint("Tangent", 2, 2, 3, 2),
    Sketcher.Constraint("Tangent", 3, 1, 4, 1),
    Sketcher.Constraint("Tangent", 4, 2, 5, 2),
    Sketcher.Constraint("Tangent", 5, 1, 6, 1),
    Sketcher.Constraint("Tangent", 6, 2, 7, 2),
    Sketcher.Constraint("Tangent", 7, 1, 0, 1),
    Sketcher.Constraint("Horizontal", 0),
    Sketcher.Constraint("Vertical", 2),
    Sketcher.Constraint("Horizontal", 4),
    Sketcher.Constraint("Vertical", 6),
    Sketcher.Constraint("Equal", 1, 3),
    Sketcher.Constraint("Equal", 3, 5),
    Sketcher.Constraint("Equal", 5, 7),
    Sketcher.Constraint("Symmetric", 1, 3, 5, 3, -1, 1),
    Sketcher.Constraint("Radius", 1, Q("10 mm")),
    Sketcher.Constraint("DistanceX", 0, 2, 0, 1, Q("260 mm")),
    Sketcher.Constraint("DistanceY", 2, 1, 2, 2, Q("160 mm")),
])
sketch14.setExpression("Constraints[16]", "Params.sketch14_radius")
sketch14.setExpression("Constraints[17]", "Params.sketch14_width")
sketch14.setExpression("Constraints[18]", "Params.sketch14_height")
pad6 = body9.newObject("PartDesign::Pad", "Pad005")
pad6.Profile = sketch14
pad6.setExpression("Length", "Params.pad6_length")

sketch15 = body9.newObject("Sketcher::SketchObject", "Sketch014")
sketch15.AttachmentSupport = (doc.getObject("YZ_Plane008"), [""])
sketch15.MapMode = "FlatFace"
sketch15.AttachmentOffset = App.Placement(V(0, 0, -120), App.Rotation())
sketch15.addGeometry([
    Part.LineSegment(V(-70, 42.206024, 0), V(-70, 0, 0)),
    Part.LineSegment(V(-70, 0, 0), V(-63, 0, 0)),
    Part.LineSegment(V(-63, 0, 0), V(-63, 38, 0)),
    Part.LineSegment(V(-63, 38, 0), V(-70, 42.206024, 0)),
], False)
sketch15.addGeometry(Part.LineSegment(V(-70, 0, 0), V(-70, 42.206024, 0)), True)
sketch15.addConstraint([
    Sketcher.Constraint("Coincident", 0, 2, 1, 1),
    Sketcher.Constraint("Coincident", 1, 2, 2, 1),
    Sketcher.Constraint("Coincident", 2, 2, 3, 1),
    Sketcher.Constraint("Coincident", 3, 2, 0, 1),
    Sketcher.Constraint("Vertical", 0),
    Sketcher.Constraint("Horizontal", 1),
    Sketcher.Constraint("Vertical", 2),
    Sketcher.Constraint("Vertical", 4),
    Sketcher.Constraint("Coincident", 4, 1, 0, 2),
    Sketcher.Constraint("PointOnObject", 0, 2, -1),
    Sketcher.Constraint("Equal", 0, 4),
    Sketcher.Constraint("DistanceX", 1, 1, 1, 2, Q("7 mm")),
    Sketcher.Constraint("DistanceY", 2, 1, 2, 2, Q("38 mm")),
    Sketcher.Constraint("Angle", 3, Q("149 deg")),
    Sketcher.Constraint("DistanceX", 0, 2, -1, 1, Q("70 mm")),
])
sketch15.setExpression("Constraints[11]", "Params.sketch15_width")
sketch15.setExpression("Constraints[12]", "Params.sketch15_height")
groove3 = body9.newObject("PartDesign::Groove", "Groove002")
groove3.Profile = sketch15
groove3.ReferenceAxis = (sketch15, ["Axis0"])
groove3.setExpression("Angle", "Params.groove3_angle")
doc.recompute()

datumline3 = body9.newObject("PartDesign::Line", "DatumLine002")
datumline3.Placement = App.Placement(V(0, 0, 0), App.Rotation(V(0, 0, 1), V(0.863778901, 0.503871026, 0)))
linearpattern = body9.newObject("PartDesign::LinearPattern", "LinearPattern")
linearpattern.Originals = [groove3]
linearpattern.Direction = (datumline3, [""])
linearpattern.Mode = "offset"
linearpattern.setExpression("Offset", "Params.linearpattern_pitch")
linearpattern.Occurrences = 2
body9.Tip = linearpattern

sketch16 = body9.newObject("Sketcher::SketchObject", "Sketch015")
sketch16.AttachmentSupport = (doc.getObject("XY_Plane008"), [""])
sketch16.MapMode = "FlatFace"
sketch16.addGeometry([
    Part.LineSegment(V(75, 50, 0), V(75, -50, 0)),
    Part.LineSegment(V(75, -50, 0), V(-75, -50, 0)),
    Part.LineSegment(V(-75, -50, 0), V(-75, 50, 0)),
    Part.LineSegment(V(-75, 50, 0), V(75, 50, 0)),
], False)
sketch16.addConstraint([
    Sketcher.Constraint("Coincident", 0, 2, 1, 1),
    Sketcher.Constraint("Coincident", 1, 2, 2, 1),
    Sketcher.Constraint("Coincident", 2, 2, 3, 1),
    Sketcher.Constraint("Coincident", 3, 2, 0, 1),
    Sketcher.Constraint("Vertical", 0),
    Sketcher.Constraint("Horizontal", 1),
    Sketcher.Constraint("Vertical", 2),
    Sketcher.Constraint("Horizontal", 3),
    Sketcher.Constraint("Symmetric", 0, 2, 2, 2, -1, 1),
    Sketcher.Constraint("DistanceX", 1, 2, 1, 1, Q("150 mm")),
    Sketcher.Constraint("DistanceY", 0, 2, 0, 1, Q("100 mm")),
])
sketch16.setExpression("Constraints[9]", "Params.sketch16_width")
sketch16.setExpression("Constraints[10]", "Params.sketch16_height")
pocket7 = body9.newObject("PartDesign::Pocket", "Pocket006")
pocket7.Profile = sketch16
pocket7.setExpression("Length", "Params.pocket7_length")
pocket7.Reversed = True
doc.recompute()

fillet = body9.newObject("PartDesign::Fillet", "Fillet")
fillet.Base = (pocket7, edges_at(pocket7, [
    (-75, 50, 5),
    (-75, -50, 5),
    (75, -50, 5),
    (75, 50, 5),
]))
fillet.setExpression("Radius", "Params.fillet_radius")

sketch17 = body9.newObject("Sketcher::SketchObject", "Sketch016")
sketch17.AttachmentSupport = (doc.getObject("YZ_Plane008"), [""])
sketch17.MapMode = "FlatFace"
sketch17.AttachmentOffset = App.Placement(V(0, 0, -80), App.Rotation())
sketch17.addGeometry([
    Part.LineSegment(V(55, 15.261807, 0), V(55, 0, 0)),
    Part.LineSegment(V(55, 0, 0), V(57.1, 0, 0)),
    Part.LineSegment(V(57.1, 0, 0), V(57.1, 14, 0)),
    Part.LineSegment(V(57.1, 14, 0), V(55, 15.261807, 0)),
], False)
sketch17.addGeometry(Part.LineSegment(V(55, 0, 0), V(55, 15.261807, 0)), True)
sketch17.addConstraint([
    Sketcher.Constraint("Coincident", 0, 2, 1, 1),
    Sketcher.Constraint("Coincident", 1, 2, 2, 1),
    Sketcher.Constraint("Coincident", 2, 2, 3, 1),
    Sketcher.Constraint("Coincident", 3, 2, 0, 1),
    Sketcher.Constraint("Vertical", 0),
    Sketcher.Constraint("Horizontal", 1),
    Sketcher.Constraint("Vertical", 2),
    Sketcher.Constraint("Vertical", 4),
    Sketcher.Constraint("Coincident", 4, 1, 0, 2),
    Sketcher.Constraint("PointOnObject", 0, 2, -1),
    Sketcher.Constraint("Equal", 0, 4),
    Sketcher.Constraint("DistanceY", 2, 1, 2, 2, Q("14 mm")),
    Sketcher.Constraint("Angle", 3, Q("149 deg")),
    Sketcher.Constraint("DistanceX", 1, 1, 1, 2, Q("2.1 mm")),
    Sketcher.Constraint("DistanceX", -1, 1, 0, 2, Q("55 mm")),
])
sketch17.setExpression("Constraints[11]", "Params.sketch17_height")
sketch17.setExpression("Constraints[13]", "Params.sketch17_width")
groove4 = body9.newObject("PartDesign::Groove", "Groove003")
groove4.Profile = sketch17
groove4.ReferenceAxis = (sketch17, ["Axis0"])
groove4.setExpression("Angle", "Params.groove4_angle")
doc.recompute()

linearpattern2 = body9.newObject("PartDesign::LinearPattern", "LinearPattern001")
linearpattern2.Originals = [groove4]
linearpattern2.Direction = (doc.getObject("Y_Axis008"), [""])
linearpattern2.Mode = "offset"
linearpattern2.setExpression("Offset", "Params.linearpattern2_pitch")
linearpattern2.Occurrences = 2
linearpattern2.Reversed = True
body9.Tip = linearpattern2
doc.recompute()

datumline4 = body9.newObject("PartDesign::Line", "DatumLine003")
datumline4.Placement = App.Placement(V(0, 0, 0), App.Rotation(V(0, 0, 1), V(0.824041924, -0.566528823, 0)))
linearpattern3 = body9.newObject("PartDesign::LinearPattern", "LinearPattern002")
linearpattern3.Originals = [groove4]
linearpattern3.Direction = (datumline4, [""])
linearpattern3.Mode = "offset"
linearpattern3.setExpression("Offset", "Params.linearpattern3_pitch")
linearpattern3.Occurrences = 2
body9.Tip = linearpattern3
doc.recompute()

linearpattern4 = body9.newObject("PartDesign::LinearPattern", "LinearPattern003")
linearpattern4.Originals = [groove4]
linearpattern4.Direction = (doc.getObject("X_Axis008"), [""])
linearpattern4.Mode = "offset"
linearpattern4.setExpression("Offset", "Params.linearpattern4_pitch")
linearpattern4.Occurrences = 2
body9.Tip = linearpattern4
mirroring.Visibility = False
mirroring2.Visibility = False
mirroring3.Visibility = False

doc.recompute()
